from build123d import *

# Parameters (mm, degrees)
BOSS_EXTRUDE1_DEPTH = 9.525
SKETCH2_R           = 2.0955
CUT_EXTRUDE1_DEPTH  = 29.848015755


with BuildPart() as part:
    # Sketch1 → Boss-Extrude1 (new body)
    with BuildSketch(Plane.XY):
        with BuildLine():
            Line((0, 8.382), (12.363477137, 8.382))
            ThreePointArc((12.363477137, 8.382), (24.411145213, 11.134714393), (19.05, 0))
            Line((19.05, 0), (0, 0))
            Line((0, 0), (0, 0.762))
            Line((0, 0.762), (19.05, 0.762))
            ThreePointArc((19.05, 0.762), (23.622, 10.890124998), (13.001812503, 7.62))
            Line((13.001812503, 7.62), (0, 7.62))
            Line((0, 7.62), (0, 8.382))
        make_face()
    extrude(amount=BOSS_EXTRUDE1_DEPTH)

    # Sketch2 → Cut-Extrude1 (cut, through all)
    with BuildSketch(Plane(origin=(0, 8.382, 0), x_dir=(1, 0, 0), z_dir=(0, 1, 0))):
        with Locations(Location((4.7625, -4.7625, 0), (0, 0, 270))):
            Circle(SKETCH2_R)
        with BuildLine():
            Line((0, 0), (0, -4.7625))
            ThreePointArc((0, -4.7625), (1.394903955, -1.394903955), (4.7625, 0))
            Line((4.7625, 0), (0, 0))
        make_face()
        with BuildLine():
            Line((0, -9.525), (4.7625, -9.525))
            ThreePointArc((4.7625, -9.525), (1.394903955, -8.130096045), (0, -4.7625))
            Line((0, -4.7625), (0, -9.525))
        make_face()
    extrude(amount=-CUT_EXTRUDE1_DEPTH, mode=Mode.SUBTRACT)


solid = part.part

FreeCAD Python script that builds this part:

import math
import FreeCAD as App
import Part
import Sketcher

V = App.Vector
Q = App.Units.Quantity

doc = App.newDocument("Part")
body = doc.addObject("PartDesign::Body", "Body")

sketch1 = body.newObject("Sketcher::SketchObject", "Sketch")
sketch1.AttachmentSupport = (doc.getObject("XY_Plane"), [""])
sketch1.MapMode = "FlatFace"
sketch1.addGeometry([
    Part.LineSegment(V(12.4, 8.4, 0), V(0, 8.4, 0)),
    Part.LineSegment(V(0, 8.4, 0), V(0, 7.6, 0)),
    Part.LineSegment(V(0, 7.6, 0), V(13, 7.6, 0)),
    Part.ArcOfCircle(Part.Circle(V(19.1, 6.9, 0), V(0, 0, 1), 6.1), math.radians(-90), math.radians(173)),
    Part.LineSegment(V(19.1, 0.8, 0), V(0, 0.8, 0)),
    Part.LineSegment(V(0, 0.8, 0), V(0, 0, 0)),
    Part.LineSegment(V(0, 0, 0), V(19.1, 0, 0)),
    Part.ArcOfCircle(Part.Circle(V(19.1, 6.9, 0), V(0, 0, 1), 6.9), math.radians(-90), math.radians(167)),
], False)
sketch1.addConstraint([
    Sketcher.Constraint("Coincident", 0, 2, 1, 1),
    Sketcher.Constraint("Coincident", 1, 2, 2, 1),
    Sketcher.Constraint("Coincident", 2, 2, 3, 2),
    Sketcher.Constraint("Tangent", 3, 1, 4, 1),
    Sketcher.Constraint("Coincident", 4, 2, 5, 1),
    Sketcher.Constraint("Coincident", 5, 2, 6, 1),
    Sketcher.Constraint("Tangent", 6, 2, 7, 1),
    Sketcher.Constraint("Coincident", 7, 2, 0, 1),
    Sketcher.Constraint("Horizontal", 0),
    Sketcher.Constraint("Vertical", 1),
    Sketcher.Constraint("Horizontal", 2),
    Sketcher.Constraint("Horizontal", 4),
    Sketcher.Constraint("Vertical", 5),
    Sketcher.Constraint("Horizontal", 6),
    Sketcher.Constraint("Coincident", 5, 2, -1, 1),
    Sketcher.Constraint("Coincident", 7, 3, 3, 3),
    Sketcher.Constraint("PointOnObject", 0, 2, -2),
    Sketcher.Constraint("Equal", 1, 5),
    Sketcher.Constraint("Radius", 3, Q("0.24 in")),
    Sketcher.Constraint("Radius", 7, Q("0.27 in")),
    Sketcher.Constraint("DistanceX", 4, 2, 4, 1, Q("0.75 in")),
    Sketcher.Constraint("DistanceY", -1, 1, 1, 2, Q("0.3 in")),
])
pad1 = body.newObject("PartDesign::Pad", "Pad")
pad1.Profile = sketch1
pad1.Length = Q("0.375 in")

sketch2 = body.newObject("Sketcher::SketchObject", "Sketch001")
sketch2.AttachmentSupport = (doc.getObject("XZ_Plane"), [""])
sketch2.MapMode = "FlatFace"
sketch2.AttachmentOffset = App.Placement(V(0, 0, -0.33 * 25.4), App.Rotation())
sketch2.addGeometry([
    Part.Circle(V(4.8, 4.8, 0), V(0, 0, 1), 2.1),
    Part.LineSegment(V(0, 0, 0), V(0, 4.8, 0)),
    Part.ArcOfCircle(Part.Circle(V(4.8, 4.8, 0), V(0, 0, 1), 4.8), math.radians(-180), math.radians(-90)),
    Part.LineSegment(V(4.8, 0, 0), V(0, 0, 0)),
    Part.LineSegment(V(0, 9.5, 0), V(4.8, 9.5, 0)),
    Part.ArcOfCircle(Part.Circle(V(4.8, 4.8, 0), V(0, 0, 1), 4.8), math.radians(90), math.radians(180)),
    Part.LineSegment(V(0, 4.8, 0), V(0, 9.5, 0)),
], False)
sketch2.addConstraint([
    Sketcher.Constraint("Tangent", 1, 2, 2, 1),
    Sketcher.Constraint("Tangent", 2, 2, 3, 1),
    Sketcher.Constraint("Coincident", 3, 2, 1, 1),
    Sketcher.Constraint("Tangent", 4, 2, 5, 1),
    Sketcher.Constraint("Tangent", 5, 2, 6, 1),
    Sketcher.Constraint("Coincident", 6, 2, 4, 1),
    Sketcher.Constraint("Vertical", 1),
    Sketcher.Constraint("Horizontal", 3),
    Sketcher.Constraint("Horizontal", 4),
    Sketcher.Constraint("Vertical", 6),
    Sketcher.Constraint("Coincident", 3, 2, -1, 1),
    Sketcher.Constraint("Coincident", 2, 3, 0, 3),
    Sketcher.Constraint("Coincident", 5, 3, 0, 3),
    Sketcher.Constraint("Equal", 2, 5),
    Sketcher.Constraint("Diameter", 0, Q("0.165 in")),
    Sketcher.Constraint("Radius", 2, Q("0.1875 in")),
])
pocket1 = body.newObject("PartDesign::Pocket", "Pocket")
pocket1.Profile = sketch2
pocket1.Type = "ThroughAll"
pocket1.Reversed = True

doc.recompute()
